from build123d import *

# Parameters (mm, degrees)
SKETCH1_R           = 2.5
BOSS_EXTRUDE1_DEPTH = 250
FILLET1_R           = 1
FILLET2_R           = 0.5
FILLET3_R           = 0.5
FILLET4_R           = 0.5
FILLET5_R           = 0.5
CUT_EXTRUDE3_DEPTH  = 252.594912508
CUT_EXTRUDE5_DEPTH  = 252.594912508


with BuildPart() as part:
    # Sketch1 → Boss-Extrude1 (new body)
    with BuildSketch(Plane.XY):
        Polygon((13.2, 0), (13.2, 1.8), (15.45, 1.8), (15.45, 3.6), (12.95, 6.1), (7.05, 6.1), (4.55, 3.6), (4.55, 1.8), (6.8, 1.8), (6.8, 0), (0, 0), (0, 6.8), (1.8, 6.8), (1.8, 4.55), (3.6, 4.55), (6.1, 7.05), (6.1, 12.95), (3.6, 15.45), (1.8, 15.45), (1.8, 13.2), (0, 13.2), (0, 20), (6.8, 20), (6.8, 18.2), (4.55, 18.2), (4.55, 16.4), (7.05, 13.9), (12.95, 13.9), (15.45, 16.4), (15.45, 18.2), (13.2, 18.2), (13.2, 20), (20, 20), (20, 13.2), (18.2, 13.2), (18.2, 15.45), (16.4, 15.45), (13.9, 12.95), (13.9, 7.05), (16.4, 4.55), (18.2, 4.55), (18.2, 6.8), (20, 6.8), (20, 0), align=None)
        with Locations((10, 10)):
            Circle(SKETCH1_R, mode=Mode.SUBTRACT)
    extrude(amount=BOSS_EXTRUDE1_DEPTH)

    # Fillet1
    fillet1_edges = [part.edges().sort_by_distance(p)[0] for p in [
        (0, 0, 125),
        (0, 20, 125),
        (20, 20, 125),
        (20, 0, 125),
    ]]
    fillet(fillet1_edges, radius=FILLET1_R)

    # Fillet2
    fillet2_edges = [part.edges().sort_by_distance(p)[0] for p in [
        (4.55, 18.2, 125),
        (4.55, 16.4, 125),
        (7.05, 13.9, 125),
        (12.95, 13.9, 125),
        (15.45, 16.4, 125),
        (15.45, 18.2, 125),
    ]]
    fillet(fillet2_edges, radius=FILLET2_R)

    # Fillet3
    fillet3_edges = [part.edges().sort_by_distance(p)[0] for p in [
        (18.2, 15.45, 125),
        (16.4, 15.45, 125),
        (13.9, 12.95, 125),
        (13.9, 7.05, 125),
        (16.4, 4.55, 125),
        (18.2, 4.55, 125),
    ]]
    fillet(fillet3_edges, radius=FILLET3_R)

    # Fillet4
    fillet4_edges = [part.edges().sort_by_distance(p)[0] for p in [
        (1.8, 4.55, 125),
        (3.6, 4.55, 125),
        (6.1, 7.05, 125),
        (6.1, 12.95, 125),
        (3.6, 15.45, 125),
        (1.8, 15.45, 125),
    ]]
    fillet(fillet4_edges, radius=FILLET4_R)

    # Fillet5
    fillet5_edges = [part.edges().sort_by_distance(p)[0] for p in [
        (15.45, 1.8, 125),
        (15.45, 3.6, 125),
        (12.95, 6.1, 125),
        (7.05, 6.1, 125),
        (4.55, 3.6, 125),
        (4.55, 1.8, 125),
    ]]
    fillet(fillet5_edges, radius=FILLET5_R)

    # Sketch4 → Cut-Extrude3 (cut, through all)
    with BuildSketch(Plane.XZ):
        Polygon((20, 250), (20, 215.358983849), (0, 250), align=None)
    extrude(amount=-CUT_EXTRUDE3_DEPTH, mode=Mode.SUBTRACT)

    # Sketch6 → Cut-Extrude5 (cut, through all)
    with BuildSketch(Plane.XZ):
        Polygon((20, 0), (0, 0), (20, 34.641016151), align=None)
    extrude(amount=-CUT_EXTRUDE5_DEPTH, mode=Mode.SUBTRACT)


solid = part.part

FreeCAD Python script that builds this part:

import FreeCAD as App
import Part
import Sketcher
from FreeCAD import Vector
Q = App.Units.Quantity


def edges_at(feature, points):
    """Names of the edges that pass closest to the given points."""
    edges = feature.Shape.Edges
    near = lambda p: min(range(len(edges)), key=lambda i: edges[i].distToShape(Part.Vertex(*p))[0])
    return sorted({f"Edge{near(p) + 1}" for p in points})

doc = App.newDocument("Part")
body = doc.addObject("PartDesign::Body", "Body")

# Sketch on XY plane
sketch1 = doc.addObject("Sketcher::SketchObject", "Sketch")
body.addObject(sketch1)
sketch1.AttachmentSupport = (doc.XY_Plane, [""])
sketch1.MapMode = "FlatFace"
sketch1.addGeometry([
    Part.LineSegment(Vector(13.2, 1.8, 0), Vector(13.2, 0, 0)),  # 0
    Part.LineSegment(Vector(13.2, 0, 0), Vector(20, 0, 0)),  # 1
    Part.LineSegment(Vector(20, 0, 0), Vector(20, 6.8, 0)),  # 2
    Part.LineSegment(Vector(20, 6.8, 0), Vector(18.2, 6.8, 0)),  # 3
    Part.LineSegment(Vector(18.2, 6.8, 0), Vector(18.2, 4.55, 0)),  # 4
    Part.LineSegment(Vector(18.2, 4.55, 0), Vector(16.4, 4.55, 0)),  # 5
    Part.LineSegment(Vector(16.4, 4.55, 0), Vector(13.9, 7.05, 0)),  # 6
    Part.LineSegment(Vector(13.9, 7.05, 0), Vector(13.9, 12.95, 0)),  # 7
    Part.LineSegment(Vector(13.9, 12.95, 0), Vector(16.4, 15.45, 0)),  # 8
    Part.LineSegment(Vector(16.4, 15.45, 0), Vector(18.2, 15.45, 0)),  # 9
    Part.LineSegment(Vector(18.2, 15.45, 0), Vector(18.2, 13.2, 0)),  # 10
    Part.LineSegment(Vector(18.2, 13.2, 0), Vector(20, 13.2, 0)),  # 11
    Part.LineSegment(Vector(20, 13.2, 0), Vector(20, 20, 0)),  # 12
    Part.LineSegment(Vector(20, 20, 0), Vector(13.2, 20, 0)),  # 13
    Part.LineSegment(Vector(13.2, 20, 0), Vector(13.2, 18.2, 0)),  # 14
    Part.LineSegment(Vector(13.2, 18.2, 0), Vector(15.45, 18.2, 0)),  # 15
    Part.LineSegment(Vector(15.45, 18.2, 0), Vector(15.45, 16.4, 0)),  # 16
    Part.LineSegment(Vector(15.45, 16.4, 0), Vector(12.95, 13.9, 0)),  # 17
    Part.LineSegment(Vector(12.95, 13.9, 0), Vector(7.05, 13.9, 0)),  # 18
    Part.LineSegment(Vector(7.05, 13.9, 0), Vector(4.55, 16.4, 0)),  # 19
    Part.LineSegment(Vector(4.55, 16.4, 0), Vector(4.55, 18.2, 0)),  # 20
    Part.LineSegment(Vector(4.55, 18.2, 0), Vector(6.8, 18.2, 0)),  # 21
    Part.LineSegment(Vector(6.8, 18.2, 0), Vector(6.8, 20, 0)),  # 22
    Part.LineSegment(Vector(6.8, 20, 0), Vector(0, 20, 0)),  # 23
    Part.LineSegment(Vector(0, 20, 0), Vector(0, 13.2, 0)),  # 24
    Part.LineSegment(Vector(0, 13.2, 0), Vector(1.8, 13.2, 0)),  # 25
    Part.LineSegment(Vector(1.8, 13.2, 0), Vector(1.8, 15.45, 0)),  # 26
    Part.LineSegment(Vector(1.8, 15.45, 0), Vector(3.6, 15.45, 0)),  # 27
    Part.LineSegment(Vector(3.6, 15.45, 0), Vector(6.1, 12.95, 0)),  # 28
    Part.LineSegment(Vector(6.1, 12.95, 0), Vector(6.1, 7.05, 0)),  # 29
    Part.LineSegment(Vector(6.1, 7.05, 0), Vector(3.6, 4.55, 0)),  # 30
    Part.LineSegment(Vector(3.6, 4.55, 0), Vector(1.8, 4.55, 0)),  # 31
    Part.LineSegment(Vector(1.8, 4.55, 0), Vector(1.8, 6.8, 0)),  # 32
    Part.LineSegment(Vector(1.8, 6.8, 0), Vector(0, 6.8, 0)),  # 33
    Part.LineSegment(Vector(0, 6.8, 0), Vector(0, 0, 0)),  # 34
    Part.LineSegment(Vector(0, 0, 0), Vector(6.8, 0, 0)),  # 35
    Part.LineSegment(Vector(6.8, 0, 0), Vector(6.8, 1.8, 0)),  # 36
    Part.LineSegment(Vector(6.8, 1.8, 0), Vector(4.55, 1.8, 0)),  # 37
    Part.LineSegment(Vector(4.55, 1.8, 0), Vector(4.55, 3.6, 0)),  # 38
    Part.LineSegment(Vector(4.55, 3.6, 0), Vector(7.05, 6.1, 0)),  # 39
    Part.LineSegment(Vector(7.05, 6.1, 0), Vector(12.95, 6.1, 0)),  # 40
    Part.LineSegment(Vector(12.95, 6.1, 0), Vector(15.45, 3.6, 0)),  # 41
    Part.LineSegment(Vector(15.45, 3.6, 0), Vector(15.45, 1.8, 0)),  # 42
    Part.LineSegment(Vector(15.45, 1.8, 0), Vector(13.2, 1.8, 0)),  # 43
    Part.Circle(Vector(10, 10, 0), Vector(0, 0, 1), 2.5),  # 44
], False)
sketch1.addConstraint([
    Sketcher.Constraint("Coincident", 0, 2, 1, 1),
    Sketcher.Constraint("Coincident", 1, 2, 2, 1),
    Sketcher.Constraint("Coincident", 2, 2, 3, 1),
    Sketcher.Constraint("Coincident", 3, 2, 4, 1),
    Sketcher.Constraint("Coincident", 4, 2, 5, 1),
    Sketcher.Constraint("Coincident", 5, 2, 6, 1),
    Sketcher.Constraint("Coincident", 6, 2, 7, 1),
    Sketcher.Constraint("Coincident", 7, 2, 8, 1),
    Sketcher.Constraint("Coincident", 8, 2, 9, 1),
    Sketcher.Constraint("Coincident", 9, 2, 10, 1),
    Sketcher.Constraint("Coincident", 10, 2, 11, 1),
    Sketcher.Constraint("Coincident", 11, 2, 12, 1),
    Sketcher.Constraint("Coincident", 12, 2, 13, 1),
    Sketcher.Constraint("Coincident", 13, 2, 14, 1),
    Sketcher.Constraint("Coincident", 14, 2, 15, 1),
    Sketcher.Constraint("Coincident", 15, 2, 16, 1),
    Sketcher.Constraint("Coincident", 16, 2, 17, 1),
    Sketcher.Constraint("Coincident", 17, 2, 18, 1),
    Sketcher.Constraint("Coincident", 18, 2, 19, 1),
    Sketcher.Constraint("Coincident", 19, 2, 20, 1),
    Sketcher.Constraint("Coincident", 20, 2, 21, 1),
    Sketcher.Constraint("Coincident", 21, 2, 22, 1),
    Sketcher.Constraint("Coincident", 22, 2, 23, 1),
    Sketcher.Constraint("Coincident", 23, 2, 24, 1),
    Sketcher.Constraint("Coincident", 24, 2, 25, 1),
    Sketcher.Constraint("Coincident", 25, 2, 26, 1),
    Sketcher.Constraint("Coincident", 26, 2, 27, 1),
    Sketcher.Constraint("Coincident", 27, 2, 28, 1),
    Sketcher.Constraint("Coincident", 28, 2, 29, 1),
    Sketcher.Constraint("Coincident", 29, 2, 30, 1),
    Sketcher.Constraint("Coincident", 30, 2, 31, 1),
    Sketcher.Constraint("Coincident", 31, 2, 32, 1),
    Sketcher.Constraint("Coincident", 32, 2, 33, 1),
    Sketcher.Constraint("Coincident", 33, 2, 34, 1),
    Sketcher.Constraint("Coincident", 34, 2, 35, 1),
    Sketcher.Constraint("Coincident", 35, 2, 36, 1),
    Sketcher.Constraint("Coincident", 36, 2, 37, 1),
    Sketcher.Constraint("Coincident", 37, 2, 38, 1),
    Sketcher.Constraint("Coincident", 38, 2, 39, 1),
    Sketcher.Constraint("Coincident", 39, 2, 40, 1),
    Sketcher.Constraint("Coincident", 40, 2, 41, 1),
    Sketcher.Constraint("Coincident", 41, 2, 42, 1),
    Sketcher.Constraint("Coincident", 42, 2, 43, 1),
    Sketcher.Constraint("Coincident", 43, 2, 0, 1),
    Sketcher.Constraint("Vertical", 0),
    Sketcher.Constraint("Horizontal", 1),
    Sketcher.Constraint("Vertical", 2),
    Sketcher.Constraint("Horizontal", 3),
    Sketcher.Constraint("Vertical", 4),
    Sketcher.Constraint("Horizontal", 5),
    Sketcher.Constraint("Vertical", 7),
    Sketcher.Constraint("Horizontal", 9),
    Sketcher.Constraint("Vertical", 10),
    Sketcher.Constraint("Horizontal", 11),
    Sketcher.Constraint("Vertical", 12),
    Sketcher.Constraint("Horizontal", 13),
    Sketcher.Constraint("Vertical", 14),
    Sketcher.Constraint("Horizontal", 15),
    Sketcher.Constraint("Vertical", 16),
    Sketcher.Constraint("Horizontal", 18),
    Sketcher.Constraint("Vertical", 20),
    Sketcher.Constraint("Horizontal", 21),
    Sketcher.Constraint("Vertical", 22),
    Sketcher.Constraint("Horizontal", 23),
    Sketcher.Constraint("Vertical", 24),
    Sketcher.Constraint("Horizontal", 25),
    Sketcher.Constraint("Vertical", 26),
    Sketcher.Constraint("Horizontal", 27),
    Sketcher.Constraint("Vertical", 29),
    Sketcher.Constraint("Horizontal", 31),
    Sketcher.Constraint("Vertical", 32),
    Sketcher.Constraint("Horizontal", 33),
    Sketcher.Constraint("Vertical", 34),
    Sketcher.Constraint("Horizontal", 35),
    Sketcher.Constraint("Vertical", 36),
    Sketcher.Constraint("Horizontal", 37),
    Sketcher.Constraint("Vertical", 38),
    Sketcher.Constraint("Horizontal", 40),
    Sketcher.Constraint("Vertical", 42),
    Sketcher.Constraint("Horizontal", 43),
    Sketcher.Constraint("Coincident", 34, 2, -1, 1),
    Sketcher.Constraint("PointOnObject", 0, 2, -1),
    Sketcher.Constraint("PointOnObject", 23, 2, -2),
    Sketcher.Constraint("Perpendicular", 6, 8),
    Sketcher.Constraint("Parallel", 8, 17),
    Sketcher.Constraint("Perpendicular", 17, 19),
    Sketcher.Constraint("Parallel", 19, 28),
    Sketcher.Constraint("Perpendicular", 28, 30),
    Sketcher.Constraint("Parallel", 30, 39),
    Sketcher.Constraint("Perpendicular", 39, 41),
    Sketcher.Constraint("Horizontal", 16, 2, 19, 2),
    Sketcher.Constraint("Horizontal", 15, 2, 20, 2),
    Sketcher.Constraint("Horizontal", 13, 2, 22, 2),
    Sketcher.Constraint("Horizontal", 11, 2, 24, 2),
    Sketcher.Constraint("Horizontal", 9, 2, 26, 2),
    Sketcher.Constraint("Horizontal", 7, 2, 28, 2),
    Sketcher.Constraint("Horizontal", 6, 2, 29, 2),
    Sketcher.Constraint("Horizontal", 5, 2, 30, 2),
    Sketcher.Constraint("Horizontal", 3, 2, 32, 2),
    Sketcher.Constraint("Horizontal", 38, 2, 41, 2),
    Sketcher.Constraint("Horizontal", 37, 2, 42, 2),
    Sketcher.Constraint("Vertical", 5, 2, 8, 2),
    Sketcher.Constraint("Vertical", 4, 2, 9, 2),
    Sketcher.Constraint("Vertical", 2, 2, 11, 2),
    Sketcher.Constraint("Vertical", 0, 2, 13, 2),
    Sketcher.Constraint("Vertical", 27, 2, 30, 2),
    Sketcher.Constraint("Vertical", 26, 2, 31, 2),
    Sketcher.Constraint("Vertical", 22, 2, 35, 2),
    Sketcher.Constraint("Vertical", 20, 2, 37, 2),
    Sketcher.Constraint("Vertical", 18, 2, 39, 2),
    Sketcher.Constraint("Vertical", 17, 2, 40, 2),
    Sketcher.Constraint("Equal", 3, 5),
    Sketcher.Constraint("Equal", 15, 21),
    Sketcher.Constraint("Equal", 13, 23),
    Sketcher.Constraint("Equal", 11, 25),
    Sketcher.Constraint("Equal", 25, 27),
    Sketcher.Constraint("Equal", 33, 0),
    Sketcher.Constraint("Equal", 35, 2),
    Sketcher.Constraint("Equal", 43, 4),
    Sketcher.Constraint("Equal", 40, 7),
    Sketcher.Constraint("Equal", 4, 10),
    Sketcher.Constraint("Equal", 2, 12),
    Sketcher.Constraint("Equal", 0, 14),
    Sketcher.Constraint("Equal", 14, 16),
    Sketcher.Constraint("Equal", 36, 38),
    Sketcher.Constraint("Equal", 8, 17),
    Sketcher.Constraint("Diameter", 44, 5.0),
    Sketcher.Constraint("DistanceX", 1, 1, 1, 2, 6.8),
    Sketcher.Constraint("DistanceX", 3, 2, 3, 1, 1.8),
    Sketcher.Constraint("DistanceX", 18, 2, 18, 1, 5.9),
    Sketcher.Constraint("DistanceX", -1, 1, 44, 3, 10.0),
    Sketcher.Constraint("DistanceY", -1, 1, 44, 3, 10.0),
    Sketcher.Constraint("DistanceX", -1, 1, 1, 2, 20.0),
    Sketcher.Constraint("DistanceX", 15, 1, 15, 2, 2.25),
])
pad1 = doc.addObject("PartDesign::Pad", "Pad")
body.addObject(pad1)
pad1.Profile = sketch1
pad1.Length = 250
doc.recompute()

fillet = doc.addObject("PartDesign::Fillet", "Fillet")
body.addObject(fillet)
fillet.Base = (pad1, edges_at(pad1, [
    (0, 0, 125),
    (0, 20, 125),
    (20, 20, 125),
    (20, 0, 125),
]))
fillet.Radius = 1
doc.recompute()

fillet2 = doc.addObject("PartDesign::Fillet", "Fillet001")
body.addObject(fillet2)
fillet2.Base = (fillet, edges_at(fillet, [
    (4.55, 18.2, 125),
    (4.55, 16.4, 125),
    (7.05, 13.9, 125),
    (12.95, 13.9, 125),
    (15.45, 16.4, 125),
    (15.45, 18.2, 125),
]))
fillet2.Radius = 0.5
doc.recompute()

fillet3 = doc.addObject("PartDesign::Fillet", "Fillet002")
body.addObject(fillet3)
fillet3.Base = (fillet2, edges_at(fillet2, [
    (18.2, 15.45, 125),
    (16.4, 15.45, 125),
    (13.9, 12.95, 125),
    (13.9, 7.05, 125),
    (16.4, 4.55, 125),
    (18.2, 4.55, 125),
]))
fillet3.Radius = 0.5
doc.recompute()

fillet4 = doc.addObject("PartDesign::Fillet", "Fillet003")
body.addObject(fillet4)
fillet4.Base = (fillet3, edges_at(fillet3, [
    (1.8, 4.55, 125),
    (3.6, 4.55, 125),
    (6.1, 7.05, 125),
    (6.1, 12.95, 125),
    (3.6, 15.45, 125),
    (1.8, 15.45, 125),
]))
fillet4.Radius = 0.5
doc.recompute()

fillet5 = doc.addObject("PartDesign::Fillet", "Fillet004")
body.addObject(fillet5)
fillet5.Base = (fillet4, edges_at(fillet4, [
    (15.45, 1.8, 125),
    (15.45, 3.6, 125),
    (12.95, 6.1, 125),
    (7.05, 6.1, 125),
    (4.55, 3.6, 125),
    (4.55, 1.8, 125),
]))
fillet5.Radius = 0.5

# Sketch on XZ plane
sketch2 = doc.addObject("Sketcher::SketchObject", "Sketch001")
body.addObject(sketch2)
sketch2.AttachmentSupport = (doc.XZ_Plane, [""])
sketch2.MapMode = "FlatFace"
sketch2.addGeometry([
    Part.LineSegment(Vector(20, 215.358984, 0), Vector(20, 250, 0)),
    Part.LineSegment(Vector(20, 250, 0), Vector(0, 250, 0)),
    Part.LineSegment(Vector(0, 250, 0), Vector(20, 215.358984, 0)),
], False)
sketch2.addConstraint([
    Sketcher.Constraint("Coincident", 0, 2, 1, 1),
    Sketcher.Constraint("Coincident", 1, 2, 2, 1),
    Sketcher.Constraint("Coincident", 2, 2, 0, 1),
    Sketcher.Constraint("Vertical", 0),
    Sketcher.Constraint("Horizontal", 1),
    Sketcher.Constraint("PointOnObject", 1, 2, -2),
    Sketcher.Constraint("DistanceX", 1, 2, 1, 1, 20.0),
    Sketcher.Constraint("Angle", 2, Q("-60 deg")),
    Sketcher.Constraint("DistanceY", -1, 1, 0, 2, 250.0),
])
pocket1 = doc.addObject("PartDesign::Pocket", "Pocket")
body.addObject(pocket1)
pocket1.Profile = sketch2
pocket1.Type = "ThroughAll"

# Sketch on XZ plane
sketch3 = doc.addObject("Sketcher::SketchObject", "Sketch002")
body.addObject(sketch3)
sketch3.AttachmentSupport = (doc.XZ_Plane, [""])
sketch3.MapMode = "FlatFace"
sketch3.addGeometry([
    Part.LineSegment(Vector(0, 0, 0), Vector(20, 0, 0)),
    Part.LineSegment(Vector(20, 0, 0), Vector(20, 34.641016, 0)),
    Part.LineSegment(Vector(20, 34.641016, 0), Vector(0, 0, 0)),
], False)
sketch3.addConstraint([
    Sketcher.Constraint("Coincident", 0, 2, 1, 1),
    Sketcher.Constraint("Coincident", 1, 2, 2, 1),
    Sketcher.Constraint("Coincident", 2, 2, 0, 1),
    Sketcher.Constraint("Horizontal", 0),
    Sketcher.Constraint("Vertical", 1),
    Sketcher.Constraint("Coincident", 2, 2, -1, 1),
    Sketcher.Constraint("DistanceX", 0, 1, 0, 2, 20.0),
    Sketcher.Constraint("Angle", 2, Q("-120 deg")),
])
pocket2 = doc.addObject("PartDesign::Pocket", "Pocket001")
body.addObject(pocket2)
pocket2.Profile = sketch3
pocket2.Type = "ThroughAll"

doc.recompute()
